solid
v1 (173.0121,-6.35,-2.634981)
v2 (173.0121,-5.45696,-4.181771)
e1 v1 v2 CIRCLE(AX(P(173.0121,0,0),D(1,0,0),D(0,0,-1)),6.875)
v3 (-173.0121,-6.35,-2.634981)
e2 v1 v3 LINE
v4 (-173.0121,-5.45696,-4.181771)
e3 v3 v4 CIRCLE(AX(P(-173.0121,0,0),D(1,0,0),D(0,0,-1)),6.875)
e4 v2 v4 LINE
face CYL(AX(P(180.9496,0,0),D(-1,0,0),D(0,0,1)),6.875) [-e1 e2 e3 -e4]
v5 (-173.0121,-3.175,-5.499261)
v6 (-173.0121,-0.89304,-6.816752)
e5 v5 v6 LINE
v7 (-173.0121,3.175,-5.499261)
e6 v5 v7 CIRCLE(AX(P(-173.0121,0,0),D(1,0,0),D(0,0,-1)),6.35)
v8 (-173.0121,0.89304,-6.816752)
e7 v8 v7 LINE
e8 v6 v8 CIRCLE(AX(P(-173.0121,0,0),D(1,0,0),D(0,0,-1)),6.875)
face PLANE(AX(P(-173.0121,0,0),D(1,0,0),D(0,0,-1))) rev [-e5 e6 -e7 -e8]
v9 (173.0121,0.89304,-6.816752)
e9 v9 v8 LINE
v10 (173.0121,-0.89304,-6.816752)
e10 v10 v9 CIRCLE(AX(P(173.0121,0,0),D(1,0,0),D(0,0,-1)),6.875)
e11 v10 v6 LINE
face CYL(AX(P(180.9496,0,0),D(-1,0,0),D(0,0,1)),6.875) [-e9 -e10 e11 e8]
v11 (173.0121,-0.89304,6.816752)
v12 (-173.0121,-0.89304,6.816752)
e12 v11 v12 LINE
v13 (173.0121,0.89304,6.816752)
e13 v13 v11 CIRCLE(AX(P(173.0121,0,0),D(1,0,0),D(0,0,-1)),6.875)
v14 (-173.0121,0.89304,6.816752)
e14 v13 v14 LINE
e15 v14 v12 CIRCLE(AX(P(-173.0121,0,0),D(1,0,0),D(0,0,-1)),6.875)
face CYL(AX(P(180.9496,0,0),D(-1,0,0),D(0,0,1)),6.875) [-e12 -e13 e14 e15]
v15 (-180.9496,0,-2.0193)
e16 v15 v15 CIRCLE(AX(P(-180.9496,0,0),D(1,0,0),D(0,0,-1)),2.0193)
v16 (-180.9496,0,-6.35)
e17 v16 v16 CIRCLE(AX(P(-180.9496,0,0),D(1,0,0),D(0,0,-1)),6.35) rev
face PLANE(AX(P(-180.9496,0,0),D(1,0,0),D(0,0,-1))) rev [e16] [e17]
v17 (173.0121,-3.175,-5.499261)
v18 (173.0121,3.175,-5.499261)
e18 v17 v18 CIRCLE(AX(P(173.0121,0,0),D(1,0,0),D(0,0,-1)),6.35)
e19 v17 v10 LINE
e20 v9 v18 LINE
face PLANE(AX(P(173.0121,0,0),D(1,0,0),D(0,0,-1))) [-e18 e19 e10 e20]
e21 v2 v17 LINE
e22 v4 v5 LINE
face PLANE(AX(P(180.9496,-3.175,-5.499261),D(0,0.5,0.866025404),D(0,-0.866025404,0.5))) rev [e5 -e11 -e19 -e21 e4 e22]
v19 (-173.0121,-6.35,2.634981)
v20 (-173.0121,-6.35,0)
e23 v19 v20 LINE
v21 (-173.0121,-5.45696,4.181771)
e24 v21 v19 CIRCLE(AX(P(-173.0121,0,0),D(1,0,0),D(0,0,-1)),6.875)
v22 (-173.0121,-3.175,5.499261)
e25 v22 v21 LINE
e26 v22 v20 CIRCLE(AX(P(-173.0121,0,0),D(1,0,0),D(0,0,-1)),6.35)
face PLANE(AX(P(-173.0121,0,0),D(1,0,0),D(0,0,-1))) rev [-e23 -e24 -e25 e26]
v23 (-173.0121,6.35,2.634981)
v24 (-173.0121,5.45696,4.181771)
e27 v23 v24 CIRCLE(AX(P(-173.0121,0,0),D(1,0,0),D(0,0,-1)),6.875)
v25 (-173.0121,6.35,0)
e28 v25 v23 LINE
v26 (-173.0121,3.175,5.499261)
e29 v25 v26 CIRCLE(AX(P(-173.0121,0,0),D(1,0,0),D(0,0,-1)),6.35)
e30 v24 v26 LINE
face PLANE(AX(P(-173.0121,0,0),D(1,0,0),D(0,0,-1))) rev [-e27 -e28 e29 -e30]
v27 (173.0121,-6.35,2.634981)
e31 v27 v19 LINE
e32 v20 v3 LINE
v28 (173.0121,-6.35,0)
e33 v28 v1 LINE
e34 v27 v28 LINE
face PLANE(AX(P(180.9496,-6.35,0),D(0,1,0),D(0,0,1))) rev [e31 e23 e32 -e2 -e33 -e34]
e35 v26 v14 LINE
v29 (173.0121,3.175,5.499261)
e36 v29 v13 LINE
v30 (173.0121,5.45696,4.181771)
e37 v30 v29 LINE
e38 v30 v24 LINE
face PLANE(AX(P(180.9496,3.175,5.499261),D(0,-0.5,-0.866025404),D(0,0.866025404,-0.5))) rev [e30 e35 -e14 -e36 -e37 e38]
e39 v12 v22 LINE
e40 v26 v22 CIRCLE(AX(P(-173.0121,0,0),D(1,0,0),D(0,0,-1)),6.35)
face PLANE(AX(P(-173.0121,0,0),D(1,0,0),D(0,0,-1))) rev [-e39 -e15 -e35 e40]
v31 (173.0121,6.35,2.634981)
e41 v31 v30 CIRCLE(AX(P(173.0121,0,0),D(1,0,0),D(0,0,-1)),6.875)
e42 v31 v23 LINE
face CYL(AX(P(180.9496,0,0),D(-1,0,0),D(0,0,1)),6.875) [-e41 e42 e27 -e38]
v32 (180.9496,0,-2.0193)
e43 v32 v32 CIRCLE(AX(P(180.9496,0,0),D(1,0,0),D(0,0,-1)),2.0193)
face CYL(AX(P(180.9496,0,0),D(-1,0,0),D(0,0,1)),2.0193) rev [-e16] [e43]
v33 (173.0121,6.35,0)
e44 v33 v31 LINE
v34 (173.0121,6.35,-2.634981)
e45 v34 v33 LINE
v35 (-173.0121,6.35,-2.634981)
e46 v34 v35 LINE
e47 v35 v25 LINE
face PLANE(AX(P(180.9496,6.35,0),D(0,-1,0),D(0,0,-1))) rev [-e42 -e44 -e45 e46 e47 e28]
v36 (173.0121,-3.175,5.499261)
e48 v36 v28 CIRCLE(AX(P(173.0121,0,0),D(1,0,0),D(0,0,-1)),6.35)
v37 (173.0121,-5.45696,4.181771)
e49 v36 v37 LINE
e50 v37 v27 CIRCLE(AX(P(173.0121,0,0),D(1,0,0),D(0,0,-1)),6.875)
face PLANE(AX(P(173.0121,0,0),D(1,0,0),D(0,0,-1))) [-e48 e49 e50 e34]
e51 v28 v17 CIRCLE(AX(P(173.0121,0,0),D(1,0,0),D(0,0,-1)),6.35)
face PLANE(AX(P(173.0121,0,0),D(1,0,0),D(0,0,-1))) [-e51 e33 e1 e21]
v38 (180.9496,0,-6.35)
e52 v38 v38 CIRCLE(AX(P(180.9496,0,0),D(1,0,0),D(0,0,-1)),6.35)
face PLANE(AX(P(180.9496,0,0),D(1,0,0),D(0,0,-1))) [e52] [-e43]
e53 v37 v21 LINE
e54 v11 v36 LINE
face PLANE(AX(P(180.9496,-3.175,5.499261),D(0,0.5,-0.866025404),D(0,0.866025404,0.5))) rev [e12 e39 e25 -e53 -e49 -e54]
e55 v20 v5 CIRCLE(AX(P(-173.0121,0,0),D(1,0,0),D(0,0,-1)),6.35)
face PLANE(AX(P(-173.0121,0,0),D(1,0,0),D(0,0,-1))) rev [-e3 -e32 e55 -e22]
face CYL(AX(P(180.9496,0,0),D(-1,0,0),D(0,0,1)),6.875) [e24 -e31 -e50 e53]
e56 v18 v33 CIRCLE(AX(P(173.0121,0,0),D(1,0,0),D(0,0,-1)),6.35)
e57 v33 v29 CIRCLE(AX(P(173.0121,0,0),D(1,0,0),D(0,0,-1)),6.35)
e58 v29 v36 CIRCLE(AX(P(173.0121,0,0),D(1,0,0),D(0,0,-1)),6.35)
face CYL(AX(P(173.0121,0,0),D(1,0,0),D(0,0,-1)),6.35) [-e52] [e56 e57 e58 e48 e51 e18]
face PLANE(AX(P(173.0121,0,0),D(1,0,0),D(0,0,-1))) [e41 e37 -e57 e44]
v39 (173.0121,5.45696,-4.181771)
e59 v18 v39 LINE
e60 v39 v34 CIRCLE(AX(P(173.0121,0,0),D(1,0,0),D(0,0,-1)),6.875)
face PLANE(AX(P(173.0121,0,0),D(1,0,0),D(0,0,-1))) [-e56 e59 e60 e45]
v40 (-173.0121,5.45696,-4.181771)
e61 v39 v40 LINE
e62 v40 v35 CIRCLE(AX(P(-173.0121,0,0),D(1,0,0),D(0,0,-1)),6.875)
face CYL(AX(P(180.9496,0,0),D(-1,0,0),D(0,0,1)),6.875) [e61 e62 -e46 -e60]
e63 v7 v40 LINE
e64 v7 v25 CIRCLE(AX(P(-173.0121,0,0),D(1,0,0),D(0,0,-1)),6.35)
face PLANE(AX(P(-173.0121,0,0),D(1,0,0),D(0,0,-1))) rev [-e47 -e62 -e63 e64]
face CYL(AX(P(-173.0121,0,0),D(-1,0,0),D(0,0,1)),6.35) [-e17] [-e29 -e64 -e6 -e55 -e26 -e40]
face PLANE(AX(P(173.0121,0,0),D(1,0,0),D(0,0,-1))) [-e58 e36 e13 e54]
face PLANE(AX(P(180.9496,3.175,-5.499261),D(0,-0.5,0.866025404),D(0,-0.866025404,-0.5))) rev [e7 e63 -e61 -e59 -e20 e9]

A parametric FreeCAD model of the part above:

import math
import FreeCAD as App
import Part
import Sketcher
Q = App.Units.Quantity

doc = App.newDocument("Part")
body = doc.addObject("PartDesign::Body", "Body")

# Sketch on YZ plane
sketch1 = body.newObject("Sketcher::SketchObject", "Sketch")
sketch1.AttachmentSupport = (doc.getObject("YZ_Plane"), [""])
sketch1.MapMode = "FlatFace"
sketch1.addGeometry([
    Part.ArcOfCircle(Part.Circle(App.Vector(0, 0, 0), App.Vector(0, 0, 1), 6.9), math.radians(-37.46), math.radians(-22.54)),  # 0
    Part.LineSegment(App.Vector(6.3, -2.6, 0), App.Vector(6.3, 2.6, 0)),  # 1
    Part.ArcOfCircle(Part.Circle(App.Vector(0, 0, 0), App.Vector(0, 0, 1), 6.9), math.radians(22.54), math.radians(37.46)),  # 2
    Part.LineSegment(App.Vector(5.5, 4.2, 0), App.Vector(0.9, 6.8, 0)),  # 3
    Part.ArcOfCircle(Part.Circle(App.Vector(0, 0, 0), App.Vector(0, 0, 1), 6.9), math.radians(82.54), math.radians(97.46)),  # 4
    Part.LineSegment(App.Vector(-0.9, 6.8, 0), App.Vector(-5.5, 4.2, 0)),  # 5
    Part.ArcOfCircle(Part.Circle(App.Vector(0, 0, 0), App.Vector(0, 0, 1), 6.9), math.radians(142.54), math.radians(157.46)),  # 6
    Part.LineSegment(App.Vector(-6.3, 2.6, 0), App.Vector(-6.3, -2.6, 0)),  # 7
    Part.ArcOfCircle(Part.Circle(App.Vector(0, 0, 0), App.Vector(0, 0, 1), 6.9), math.radians(-157.46), math.radians(-142.54)),  # 8
    Part.LineSegment(App.Vector(-5.5, -4.2, 0), App.Vector(-0.9, -6.8, 0)),  # 9
    Part.ArcOfCircle(Part.Circle(App.Vector(0, 0, 0), App.Vector(0, 0, 1), 6.9), math.radians(-97.46), math.radians(-90)),  # 10
    Part.ArcOfCircle(Part.Circle(App.Vector(0, 0, 0), App.Vector(0, 0, 1), 6.9), math.radians(-90), math.radians(-82.54)),  # 11
    Part.LineSegment(App.Vector(0.9, -6.8, 0), App.Vector(5.5, -4.2, 0)),  # 12
    Part.Circle(App.Vector(0, 0, 0), App.Vector(0, 0, 1), 2),  # 13
], False)
sketch1.addConstraint([
    Sketcher.Constraint("Coincident", 0, 2, 1, 1),
    Sketcher.Constraint("Coincident", 1, 2, 2, 1),
    Sketcher.Constraint("Coincident", 2, 2, 3, 1),
    Sketcher.Constraint("Coincident", 3, 2, 4, 1),
    Sketcher.Constraint("Coincident", 4, 2, 5, 1),
    Sketcher.Constraint("Coincident", 5, 2, 6, 1),
    Sketcher.Constraint("Coincident", 6, 2, 7, 1),
    Sketcher.Constraint("Coincident", 7, 2, 8, 1),
    Sketcher.Constraint("Coincident", 8, 2, 9, 1),
    Sketcher.Constraint("Coincident", 9, 2, 10, 1),
    Sketcher.Constraint("Tangent", 10, 2, 11, 1),
    Sketcher.Constraint("Coincident", 11, 2, 12, 1),
    Sketcher.Constraint("Coincident", 12, 2, 0, 1),
    Sketcher.Constraint("Vertical", 1),
    Sketcher.Constraint("Vertical", 7),
    Sketcher.Constraint("Coincident", 0, 3, -1, 1),
    Sketcher.Constraint("Coincident", 2, 3, -1, 1),
    Sketcher.Constraint("Coincident", 4, 3, -1, 1),
    Sketcher.Constraint("Coincident", 6, 3, -1, 1),
    Sketcher.Constraint("Coincident", 8, 3, -1, 1),
    Sketcher.Constraint("Coincident", 10, 3, -1, 1),
    Sketcher.Constraint("Coincident", 13, 3, -1, 1),
    Sketcher.Constraint("Equal", 0, 2),
    Sketcher.Constraint("Equal", 2, 4),
    Sketcher.Constraint("Equal", 4, 6),
    Sketcher.Constraint("Equal", 6, 8),
    Sketcher.Constraint("Equal", 8, 10),
    Sketcher.Constraint("Equal", 10, 11),
    Sketcher.Constraint("PointOnObject", 10, 2, -2),
    Sketcher.Constraint("Parallel", 3, 9),
    Sketcher.Constraint("Parallel", 5, 12),
    Sketcher.Constraint("Horizontal", 3, 2, 4, 2),
    Sketcher.Constraint("Horizontal", 2, 2, 5, 2),
    Sketcher.Constraint("Horizontal", 1, 2, 6, 2),
    Sketcher.Constraint("Horizontal", 9, 2, 11, 2),
    Sketcher.Constraint("Vertical", 5, 2, 8, 2),
    Sketcher.Constraint("Diameter", 13, Q("0.159 in")),
    Sketcher.Constraint("Angle", 3, Q("150 deg")),
    Sketcher.Constraint("DistanceX", -1, 1, 0, 2, Q("0.25 in")),
    Sketcher.Constraint("Radius", 0, Q("6.875 mm")),
    Sketcher.Constraint("Distance", 3, Q("5.269962 mm")),
])
pad1 = body.newObject("PartDesign::Pad", "Pad")
pad1.Profile = sketch1
pad1.Length = Q("14.248 in")
pad1.Midplane = True

# Sketch on YZ plane
sketch2 = body.newObject("Sketcher::SketchObject", "Sketch001")
sketch2.AttachmentSupport = (doc.getObject("YZ_Plane"), [""])
sketch2.MapMode = "FlatFace"
sketch2.AttachmentOffset = App.Placement(App.Vector(0, 0, 7.124 * 25.4), App.Rotation())
sketch2.addGeometry(Part.Circle(App.Vector(0, 0, 0), App.Vector(0, 0, 1), 2), False)
sketch2.addConstraint([
    Sketcher.Constraint("Coincident", 0, 3, -1, 1),
    Sketcher.Constraint("Diameter", 0, Q("0.159 in")),
])
doc.recompute()
hole = body.newObject("PartDesign::Hole", "Hole")
hole.Profile = sketch2
hole.ThreadType = "None"
hole.Diameter = Q("0.159 in")
hole.DepthType = "Dimension"
hole.Depth = Q("0.6436 in")
hole.DrillPoint = "Angled"
hole.DrillPointAngle = 118

# Sketch on YZ plane
sketch3 = body.newObject("Sketcher::SketchObject", "Sketch002")
sketch3.AttachmentSupport = (doc.getObject("YZ_Plane"), [""])
sketch3.MapMode = "FlatFace"
sketch3.AttachmentOffset = App.Placement(App.Vector(0, 0, -7.124 * 25.4), App.Rotation())
sketch3.addGeometry(Part.Circle(App.Vector(0, 0, 0), App.Vector(0, 0, 1), 2), False)
sketch3.addConstraint([
    Sketcher.Constraint("Coincident", 0, 3, -1, 1),
    Sketcher.Constraint("Diameter", 0, Q("0.159 in")),
])
doc.recompute()
hole2 = body.newObject("PartDesign::Hole", "Hole001")
hole2.Profile = sketch3
hole2.ThreadType = "None"
hole2.Diameter = Q("0.159 in")
hole2.DepthType = "Dimension"
hole2.Depth = Q("0.6436 in")
hole2.DrillPoint = "Angled"
hole2.DrillPointAngle = 118

# Sketch on YZ plane
sketch4 = body.newObject("Sketcher::SketchObject", "Sketch003")
sketch4.AttachmentSupport = (doc.getObject("YZ_Plane"), [""])
sketch4.MapMode = "FlatFace"
sketch4.AttachmentOffset = App.Placement(App.Vector(0, 0, 7.124 * 25.4), App.Rotation())
sketch4.addGeometry([
    Part.Circle(App.Vector(0, 0, 0), App.Vector(0, 0, 1), 9),
    Part.Circle(App.Vector(0, 0, 0), App.Vector(0, 0, 1), 6),
], False)
sketch4.addConstraint([
    Sketcher.Constraint("Coincident", 0, 3, -1, 1),
    Sketcher.Constraint("Coincident", 1, 3, -1, 1),
    Sketcher.Constraint("Diameter", 0, Q("0.7 in")),
    Sketcher.Constraint("Diameter", 1, Q("0.5 in")),
])
pocket1 = body.newObject("PartDesign::Pocket", "Pocket")
pocket1.Profile = sketch4
pocket1.Length = Q("0.3125 in")
doc.recompute()

mirrored = body.newObject("PartDesign::Mirrored", "Mirrored")
mirrored.Originals = [pocket1]
mirrored.MirrorPlane = (doc.getObject("YZ_Plane"), [""])
body.Tip = mirrored

doc.recompute()
